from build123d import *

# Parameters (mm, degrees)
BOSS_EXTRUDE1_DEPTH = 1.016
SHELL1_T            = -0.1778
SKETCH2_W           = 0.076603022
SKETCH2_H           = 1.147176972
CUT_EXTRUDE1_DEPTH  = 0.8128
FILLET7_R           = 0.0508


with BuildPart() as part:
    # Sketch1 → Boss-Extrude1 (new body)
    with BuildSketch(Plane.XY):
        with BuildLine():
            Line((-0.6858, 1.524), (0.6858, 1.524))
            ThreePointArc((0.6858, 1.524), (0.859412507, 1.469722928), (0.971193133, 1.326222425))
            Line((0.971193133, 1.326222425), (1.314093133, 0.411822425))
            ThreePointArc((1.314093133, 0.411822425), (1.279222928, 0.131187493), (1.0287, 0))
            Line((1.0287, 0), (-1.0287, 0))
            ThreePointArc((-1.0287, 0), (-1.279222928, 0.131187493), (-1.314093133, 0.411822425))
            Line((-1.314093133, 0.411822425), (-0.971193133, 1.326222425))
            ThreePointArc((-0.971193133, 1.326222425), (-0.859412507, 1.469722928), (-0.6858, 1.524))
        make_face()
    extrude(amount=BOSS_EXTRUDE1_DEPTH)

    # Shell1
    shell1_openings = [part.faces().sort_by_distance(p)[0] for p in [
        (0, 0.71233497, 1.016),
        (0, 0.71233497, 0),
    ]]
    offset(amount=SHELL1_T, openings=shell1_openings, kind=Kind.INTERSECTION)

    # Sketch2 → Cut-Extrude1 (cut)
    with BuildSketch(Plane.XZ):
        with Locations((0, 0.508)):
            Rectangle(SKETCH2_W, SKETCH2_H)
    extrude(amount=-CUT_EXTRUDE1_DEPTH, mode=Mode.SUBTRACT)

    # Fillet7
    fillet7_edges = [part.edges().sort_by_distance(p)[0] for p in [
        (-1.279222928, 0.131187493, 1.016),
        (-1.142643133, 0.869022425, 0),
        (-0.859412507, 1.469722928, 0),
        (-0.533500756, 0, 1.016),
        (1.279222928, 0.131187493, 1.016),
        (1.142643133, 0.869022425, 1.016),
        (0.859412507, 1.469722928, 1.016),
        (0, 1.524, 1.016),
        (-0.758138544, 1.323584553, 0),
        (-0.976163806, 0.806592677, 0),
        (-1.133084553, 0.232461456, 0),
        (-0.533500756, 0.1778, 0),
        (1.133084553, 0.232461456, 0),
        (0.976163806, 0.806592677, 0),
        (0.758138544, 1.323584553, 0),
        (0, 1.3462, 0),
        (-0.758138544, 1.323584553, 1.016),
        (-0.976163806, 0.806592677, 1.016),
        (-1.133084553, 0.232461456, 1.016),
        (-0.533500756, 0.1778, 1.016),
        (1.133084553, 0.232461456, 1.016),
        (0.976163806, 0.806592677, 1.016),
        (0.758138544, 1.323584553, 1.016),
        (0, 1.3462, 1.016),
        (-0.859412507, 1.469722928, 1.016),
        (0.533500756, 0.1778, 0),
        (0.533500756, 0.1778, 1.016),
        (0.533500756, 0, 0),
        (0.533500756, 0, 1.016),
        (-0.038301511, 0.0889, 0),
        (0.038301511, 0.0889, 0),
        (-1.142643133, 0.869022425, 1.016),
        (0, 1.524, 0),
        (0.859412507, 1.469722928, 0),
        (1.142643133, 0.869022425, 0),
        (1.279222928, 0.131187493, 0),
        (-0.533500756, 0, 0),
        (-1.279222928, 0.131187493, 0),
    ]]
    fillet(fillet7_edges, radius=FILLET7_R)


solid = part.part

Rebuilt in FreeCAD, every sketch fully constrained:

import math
import FreeCAD as App
import Part
import Sketcher

V = App.Vector
Q = App.Units.Quantity


def edges_at(feature, points):
    """Names of the edges that pass closest to the given points."""
    edges = feature.Shape.Edges
    near = lambda p: min(range(len(edges)), key=lambda i: edges[i].distToShape(Part.Vertex(*p))[0])
    return sorted({f"Edge{near(p) + 1}" for p in points})


def faces_at(feature, points):
    """Names of the faces that lie closest to the given points."""
    faces = feature.Shape.Faces
    near = lambda p: min(range(len(faces)), key=lambda i: faces[i].distToShape(Part.Vertex(*p))[0])
    return sorted({f"Face{near(p) + 1}" for p in points})

doc = App.newDocument("Part")
body = doc.addObject("PartDesign::Body", "Body")

sketch1 = doc.addObject("Sketcher::SketchObject", "Sketch")
body.addObject(sketch1)
sketch1.AttachmentSupport = (doc.XY_Plane, [""])
sketch1.MapMode = "FlatFace"
sketch1.addGeometry(Part.LineSegment(V(0.6858, 1.524, 0), V(-0.6858, 1.524, 0)), False)
sketch1.addGeometry(Part.ArcOfCircle(Part.Circle(V(-0.6858, 1.2192, 0), V(0, 0, 1), 0.3048), math.radians(90), math.radians(159.443955)), False)
sketch1.addGeometry(Part.LineSegment(V(-0.971193, 1.326222, 0), V(-1.314093, 0.411822, 0)), False)
sketch1.addGeometry(Part.ArcOfCircle(Part.Circle(V(-1.0287, 0.3048, 0), V(0, 0, 1), 0.3048), math.radians(159.443955), math.radians(270)), False)
sketch1.addGeometry(Part.LineSegment(V(-1.0287, 0, 0), V(1.0287, 0, 0)), False)
sketch1.addGeometry(Part.ArcOfCircle(Part.Circle(V(1.0287, 0.3048, 0), V(0, 0, 1), 0.3048), math.radians(-90), math.radians(20.556045)), False)
sketch1.addGeometry(Part.LineSegment(V(1.314093, 0.411822, 0), V(0.971193, 1.326222, 0)), False)
sketch1.addGeometry(Part.ArcOfCircle(Part.Circle(V(0.6858, 1.2192, 0), V(0, 0, 1), 0.3048), math.radians(20.556045), math.radians(90)), False)
sketch1.addConstraint(Sketcher.Constraint("Tangent", 0, 2, 1, 1))
sketch1.addConstraint(Sketcher.Constraint("Tangent", 1, 2, 2, 1))
sketch1.addConstraint(Sketcher.Constraint("Tangent", 2, 2, 3, 1))
sketch1.addConstraint(Sketcher.Constraint("Tangent", 3, 2, 4, 1))
sketch1.addConstraint(Sketcher.Constraint("Tangent", 4, 2, 5, 1))
sketch1.addConstraint(Sketcher.Constraint("Tangent", 5, 2, 6, 1))
sketch1.addConstraint(Sketcher.Constraint("Tangent", 6, 2, 7, 1))
sketch1.addConstraint(Sketcher.Constraint("Tangent", 7, 2, 0, 1))
sketch1.addConstraint(Sketcher.Constraint("Horizontal", 0))
sketch1.addConstraint(Sketcher.Constraint("Horizontal", 4))
sketch1.addConstraint(Sketcher.Constraint("Equal", 1, 3))
sketch1.addConstraint(Sketcher.Constraint("Equal", 3, 5))
sketch1.addConstraint(Sketcher.Constraint("Equal", 5, 7))
sketch1.addConstraint(Sketcher.Constraint("Symmetric", 3, 2, 4, 2, -1, 1))
sketch1.addConstraint(Sketcher.Constraint("Horizontal", 2, 2, 5, 2))
sketch1.addConstraint(Sketcher.Constraint("Radius", 1, Q("0.012 in")))
sketch1.addConstraint(Sketcher.Constraint("DistanceX", 0, 2, 0, 1, Q("0.054 in")))
sketch1.addConstraint(Sketcher.Constraint("DistanceX", 4, 1, 4, 2, Q("0.081 in")))
sketch1.addConstraint(Sketcher.Constraint("DistanceY", -1, 1, 0, 2, Q("0.06 in")))
pad1 = doc.addObject("PartDesign::Pad", "Pad")
body.addObject(pad1)
pad1.Profile = sketch1
pad1.Length = Q("0.04 in")
doc.recompute()

thickness = doc.addObject("PartDesign::Thickness", "Thickness")
body.addObject(thickness)
thickness.Base = (pad1, faces_at(pad1, [(0, 0.762, 1.016), (0, 0.762, 0)]))
thickness.Value = Q("0.007 in")
thickness.Reversed = True
thickness.Join = "Intersection"

sketch2 = doc.addObject("Sketcher::SketchObject", "Sketch001")
body.addObject(sketch2)
sketch2.AttachmentSupport = (doc.XZ_Plane, [""])
sketch2.MapMode = "FlatFace"
sketch2.addGeometry(Part.LineSegment(V(-0.038302, 1.081588, 0), V(-0.038302, -0.065588, 0)), False)
sketch2.addGeometry(Part.LineSegment(V(-0.038302, -0.065588, 0), V(0.038302, -0.065588, 0)), False)
sketch2.addGeometry(Part.LineSegment(V(0.038302, -0.065588, 0), V(0.038302, 1.081588, 0)), False)
sketch2.addGeometry(Part.LineSegment(V(0.038302, 1.081588, 0), V(-0.038302, 1.081588, 0)), False)
sketch2.addConstraint(Sketcher.Constraint("Coincident", 0, 2, 1, 1))
sketch2.addConstraint(Sketcher.Constraint("Coincident", 1, 2, 2, 1))
sketch2.addConstraint(Sketcher.Constraint("Coincident", 2, 2, 3, 1))
sketch2.addConstraint(Sketcher.Constraint("Coincident", 3, 2, 0, 1))
sketch2.addConstraint(Sketcher.Constraint("Vertical", 0))
sketch2.addConstraint(Sketcher.Constraint("Horizontal", 1))
sketch2.addConstraint(Sketcher.Constraint("Vertical", 2))
sketch2.addConstraint(Sketcher.Constraint("Horizontal", 3))
sketch2.addConstraint(Sketcher.Constraint("DistanceX", 0, 2, -1, 1, Q("0.038302 mm")))
sketch2.addConstraint(Sketcher.Constraint("DistanceX", -1, 1, 1, 2, Q("0.038302 mm")))
sketch2.addConstraint(Sketcher.Constraint("DistanceY", 0, 2, 0, 1, Q("1.147177 mm")))
sketch2.addConstraint(Sketcher.Constraint("DistanceY", 0, 2, -1, 1, Q("0.065588 mm")))
pocket1 = doc.addObject("PartDesign::Pocket", "Pocket")
body.addObject(pocket1)
pocket1.Profile = sketch2
pocket1.Length = Q("0.032 in")
doc.recompute()

fillet = doc.addObject("PartDesign::Fillet", "Fillet")
body.addObject(fillet)
fillet.Base = (pocket1, edges_at(pocket1, [
    (-1.279, 0.131, 1.016),
    (-1.143, 0.869, 0),
    (-0.859, 1.47, 0),
    (-0.534, 0, 1.016),
    (1.279, 0.131, 1.016),
    (1.143, 0.869, 1.016),
    (0.859, 1.47, 1.016),
    (0, 1.524, 1.016),
    (-0.758, 1.324, 0),
    (-0.976, 0.807, 0),
    (-1.133, 0.232, 0),
    (-0.534, 0.178, 0),
    (1.133, 0.232, 0),
    (0.976, 0.807, 0),
    (0.758, 1.324, 0),
    (0, 1.346, 0),
    (-0.758, 1.324, 1.016),
    (-0.976, 0.807, 1.016),
    (-1.133, 0.232, 1.016),
    (-0.534, 0.178, 1.016),
    (1.133, 0.232, 1.016),
    (0.976, 0.807, 1.016),
    (0.758, 1.324, 1.016),
    (0, 1.346, 1.016),
    (-0.859, 1.47, 1.016),
    (0.534, 0.178, 0),
    (0.534, 0.178, 1.016),
    (0.534, 0, 0),
    (0.534, 0, 1.016),
    (-0.038, 0.089, 0),
    (0.038, 0.089, 0),
    (-1.143, 0.869, 1.016),
    (0, 1.524, 0),
    (0.859, 1.47, 0),
    (1.143, 0.869, 0),
    (1.279, 0.131, 0),
    (-0.534, 0, 0),
    (-1.279, 0.131, 0),
]))
fillet.Radius = Q("0.002 in")

doc.recompute()
